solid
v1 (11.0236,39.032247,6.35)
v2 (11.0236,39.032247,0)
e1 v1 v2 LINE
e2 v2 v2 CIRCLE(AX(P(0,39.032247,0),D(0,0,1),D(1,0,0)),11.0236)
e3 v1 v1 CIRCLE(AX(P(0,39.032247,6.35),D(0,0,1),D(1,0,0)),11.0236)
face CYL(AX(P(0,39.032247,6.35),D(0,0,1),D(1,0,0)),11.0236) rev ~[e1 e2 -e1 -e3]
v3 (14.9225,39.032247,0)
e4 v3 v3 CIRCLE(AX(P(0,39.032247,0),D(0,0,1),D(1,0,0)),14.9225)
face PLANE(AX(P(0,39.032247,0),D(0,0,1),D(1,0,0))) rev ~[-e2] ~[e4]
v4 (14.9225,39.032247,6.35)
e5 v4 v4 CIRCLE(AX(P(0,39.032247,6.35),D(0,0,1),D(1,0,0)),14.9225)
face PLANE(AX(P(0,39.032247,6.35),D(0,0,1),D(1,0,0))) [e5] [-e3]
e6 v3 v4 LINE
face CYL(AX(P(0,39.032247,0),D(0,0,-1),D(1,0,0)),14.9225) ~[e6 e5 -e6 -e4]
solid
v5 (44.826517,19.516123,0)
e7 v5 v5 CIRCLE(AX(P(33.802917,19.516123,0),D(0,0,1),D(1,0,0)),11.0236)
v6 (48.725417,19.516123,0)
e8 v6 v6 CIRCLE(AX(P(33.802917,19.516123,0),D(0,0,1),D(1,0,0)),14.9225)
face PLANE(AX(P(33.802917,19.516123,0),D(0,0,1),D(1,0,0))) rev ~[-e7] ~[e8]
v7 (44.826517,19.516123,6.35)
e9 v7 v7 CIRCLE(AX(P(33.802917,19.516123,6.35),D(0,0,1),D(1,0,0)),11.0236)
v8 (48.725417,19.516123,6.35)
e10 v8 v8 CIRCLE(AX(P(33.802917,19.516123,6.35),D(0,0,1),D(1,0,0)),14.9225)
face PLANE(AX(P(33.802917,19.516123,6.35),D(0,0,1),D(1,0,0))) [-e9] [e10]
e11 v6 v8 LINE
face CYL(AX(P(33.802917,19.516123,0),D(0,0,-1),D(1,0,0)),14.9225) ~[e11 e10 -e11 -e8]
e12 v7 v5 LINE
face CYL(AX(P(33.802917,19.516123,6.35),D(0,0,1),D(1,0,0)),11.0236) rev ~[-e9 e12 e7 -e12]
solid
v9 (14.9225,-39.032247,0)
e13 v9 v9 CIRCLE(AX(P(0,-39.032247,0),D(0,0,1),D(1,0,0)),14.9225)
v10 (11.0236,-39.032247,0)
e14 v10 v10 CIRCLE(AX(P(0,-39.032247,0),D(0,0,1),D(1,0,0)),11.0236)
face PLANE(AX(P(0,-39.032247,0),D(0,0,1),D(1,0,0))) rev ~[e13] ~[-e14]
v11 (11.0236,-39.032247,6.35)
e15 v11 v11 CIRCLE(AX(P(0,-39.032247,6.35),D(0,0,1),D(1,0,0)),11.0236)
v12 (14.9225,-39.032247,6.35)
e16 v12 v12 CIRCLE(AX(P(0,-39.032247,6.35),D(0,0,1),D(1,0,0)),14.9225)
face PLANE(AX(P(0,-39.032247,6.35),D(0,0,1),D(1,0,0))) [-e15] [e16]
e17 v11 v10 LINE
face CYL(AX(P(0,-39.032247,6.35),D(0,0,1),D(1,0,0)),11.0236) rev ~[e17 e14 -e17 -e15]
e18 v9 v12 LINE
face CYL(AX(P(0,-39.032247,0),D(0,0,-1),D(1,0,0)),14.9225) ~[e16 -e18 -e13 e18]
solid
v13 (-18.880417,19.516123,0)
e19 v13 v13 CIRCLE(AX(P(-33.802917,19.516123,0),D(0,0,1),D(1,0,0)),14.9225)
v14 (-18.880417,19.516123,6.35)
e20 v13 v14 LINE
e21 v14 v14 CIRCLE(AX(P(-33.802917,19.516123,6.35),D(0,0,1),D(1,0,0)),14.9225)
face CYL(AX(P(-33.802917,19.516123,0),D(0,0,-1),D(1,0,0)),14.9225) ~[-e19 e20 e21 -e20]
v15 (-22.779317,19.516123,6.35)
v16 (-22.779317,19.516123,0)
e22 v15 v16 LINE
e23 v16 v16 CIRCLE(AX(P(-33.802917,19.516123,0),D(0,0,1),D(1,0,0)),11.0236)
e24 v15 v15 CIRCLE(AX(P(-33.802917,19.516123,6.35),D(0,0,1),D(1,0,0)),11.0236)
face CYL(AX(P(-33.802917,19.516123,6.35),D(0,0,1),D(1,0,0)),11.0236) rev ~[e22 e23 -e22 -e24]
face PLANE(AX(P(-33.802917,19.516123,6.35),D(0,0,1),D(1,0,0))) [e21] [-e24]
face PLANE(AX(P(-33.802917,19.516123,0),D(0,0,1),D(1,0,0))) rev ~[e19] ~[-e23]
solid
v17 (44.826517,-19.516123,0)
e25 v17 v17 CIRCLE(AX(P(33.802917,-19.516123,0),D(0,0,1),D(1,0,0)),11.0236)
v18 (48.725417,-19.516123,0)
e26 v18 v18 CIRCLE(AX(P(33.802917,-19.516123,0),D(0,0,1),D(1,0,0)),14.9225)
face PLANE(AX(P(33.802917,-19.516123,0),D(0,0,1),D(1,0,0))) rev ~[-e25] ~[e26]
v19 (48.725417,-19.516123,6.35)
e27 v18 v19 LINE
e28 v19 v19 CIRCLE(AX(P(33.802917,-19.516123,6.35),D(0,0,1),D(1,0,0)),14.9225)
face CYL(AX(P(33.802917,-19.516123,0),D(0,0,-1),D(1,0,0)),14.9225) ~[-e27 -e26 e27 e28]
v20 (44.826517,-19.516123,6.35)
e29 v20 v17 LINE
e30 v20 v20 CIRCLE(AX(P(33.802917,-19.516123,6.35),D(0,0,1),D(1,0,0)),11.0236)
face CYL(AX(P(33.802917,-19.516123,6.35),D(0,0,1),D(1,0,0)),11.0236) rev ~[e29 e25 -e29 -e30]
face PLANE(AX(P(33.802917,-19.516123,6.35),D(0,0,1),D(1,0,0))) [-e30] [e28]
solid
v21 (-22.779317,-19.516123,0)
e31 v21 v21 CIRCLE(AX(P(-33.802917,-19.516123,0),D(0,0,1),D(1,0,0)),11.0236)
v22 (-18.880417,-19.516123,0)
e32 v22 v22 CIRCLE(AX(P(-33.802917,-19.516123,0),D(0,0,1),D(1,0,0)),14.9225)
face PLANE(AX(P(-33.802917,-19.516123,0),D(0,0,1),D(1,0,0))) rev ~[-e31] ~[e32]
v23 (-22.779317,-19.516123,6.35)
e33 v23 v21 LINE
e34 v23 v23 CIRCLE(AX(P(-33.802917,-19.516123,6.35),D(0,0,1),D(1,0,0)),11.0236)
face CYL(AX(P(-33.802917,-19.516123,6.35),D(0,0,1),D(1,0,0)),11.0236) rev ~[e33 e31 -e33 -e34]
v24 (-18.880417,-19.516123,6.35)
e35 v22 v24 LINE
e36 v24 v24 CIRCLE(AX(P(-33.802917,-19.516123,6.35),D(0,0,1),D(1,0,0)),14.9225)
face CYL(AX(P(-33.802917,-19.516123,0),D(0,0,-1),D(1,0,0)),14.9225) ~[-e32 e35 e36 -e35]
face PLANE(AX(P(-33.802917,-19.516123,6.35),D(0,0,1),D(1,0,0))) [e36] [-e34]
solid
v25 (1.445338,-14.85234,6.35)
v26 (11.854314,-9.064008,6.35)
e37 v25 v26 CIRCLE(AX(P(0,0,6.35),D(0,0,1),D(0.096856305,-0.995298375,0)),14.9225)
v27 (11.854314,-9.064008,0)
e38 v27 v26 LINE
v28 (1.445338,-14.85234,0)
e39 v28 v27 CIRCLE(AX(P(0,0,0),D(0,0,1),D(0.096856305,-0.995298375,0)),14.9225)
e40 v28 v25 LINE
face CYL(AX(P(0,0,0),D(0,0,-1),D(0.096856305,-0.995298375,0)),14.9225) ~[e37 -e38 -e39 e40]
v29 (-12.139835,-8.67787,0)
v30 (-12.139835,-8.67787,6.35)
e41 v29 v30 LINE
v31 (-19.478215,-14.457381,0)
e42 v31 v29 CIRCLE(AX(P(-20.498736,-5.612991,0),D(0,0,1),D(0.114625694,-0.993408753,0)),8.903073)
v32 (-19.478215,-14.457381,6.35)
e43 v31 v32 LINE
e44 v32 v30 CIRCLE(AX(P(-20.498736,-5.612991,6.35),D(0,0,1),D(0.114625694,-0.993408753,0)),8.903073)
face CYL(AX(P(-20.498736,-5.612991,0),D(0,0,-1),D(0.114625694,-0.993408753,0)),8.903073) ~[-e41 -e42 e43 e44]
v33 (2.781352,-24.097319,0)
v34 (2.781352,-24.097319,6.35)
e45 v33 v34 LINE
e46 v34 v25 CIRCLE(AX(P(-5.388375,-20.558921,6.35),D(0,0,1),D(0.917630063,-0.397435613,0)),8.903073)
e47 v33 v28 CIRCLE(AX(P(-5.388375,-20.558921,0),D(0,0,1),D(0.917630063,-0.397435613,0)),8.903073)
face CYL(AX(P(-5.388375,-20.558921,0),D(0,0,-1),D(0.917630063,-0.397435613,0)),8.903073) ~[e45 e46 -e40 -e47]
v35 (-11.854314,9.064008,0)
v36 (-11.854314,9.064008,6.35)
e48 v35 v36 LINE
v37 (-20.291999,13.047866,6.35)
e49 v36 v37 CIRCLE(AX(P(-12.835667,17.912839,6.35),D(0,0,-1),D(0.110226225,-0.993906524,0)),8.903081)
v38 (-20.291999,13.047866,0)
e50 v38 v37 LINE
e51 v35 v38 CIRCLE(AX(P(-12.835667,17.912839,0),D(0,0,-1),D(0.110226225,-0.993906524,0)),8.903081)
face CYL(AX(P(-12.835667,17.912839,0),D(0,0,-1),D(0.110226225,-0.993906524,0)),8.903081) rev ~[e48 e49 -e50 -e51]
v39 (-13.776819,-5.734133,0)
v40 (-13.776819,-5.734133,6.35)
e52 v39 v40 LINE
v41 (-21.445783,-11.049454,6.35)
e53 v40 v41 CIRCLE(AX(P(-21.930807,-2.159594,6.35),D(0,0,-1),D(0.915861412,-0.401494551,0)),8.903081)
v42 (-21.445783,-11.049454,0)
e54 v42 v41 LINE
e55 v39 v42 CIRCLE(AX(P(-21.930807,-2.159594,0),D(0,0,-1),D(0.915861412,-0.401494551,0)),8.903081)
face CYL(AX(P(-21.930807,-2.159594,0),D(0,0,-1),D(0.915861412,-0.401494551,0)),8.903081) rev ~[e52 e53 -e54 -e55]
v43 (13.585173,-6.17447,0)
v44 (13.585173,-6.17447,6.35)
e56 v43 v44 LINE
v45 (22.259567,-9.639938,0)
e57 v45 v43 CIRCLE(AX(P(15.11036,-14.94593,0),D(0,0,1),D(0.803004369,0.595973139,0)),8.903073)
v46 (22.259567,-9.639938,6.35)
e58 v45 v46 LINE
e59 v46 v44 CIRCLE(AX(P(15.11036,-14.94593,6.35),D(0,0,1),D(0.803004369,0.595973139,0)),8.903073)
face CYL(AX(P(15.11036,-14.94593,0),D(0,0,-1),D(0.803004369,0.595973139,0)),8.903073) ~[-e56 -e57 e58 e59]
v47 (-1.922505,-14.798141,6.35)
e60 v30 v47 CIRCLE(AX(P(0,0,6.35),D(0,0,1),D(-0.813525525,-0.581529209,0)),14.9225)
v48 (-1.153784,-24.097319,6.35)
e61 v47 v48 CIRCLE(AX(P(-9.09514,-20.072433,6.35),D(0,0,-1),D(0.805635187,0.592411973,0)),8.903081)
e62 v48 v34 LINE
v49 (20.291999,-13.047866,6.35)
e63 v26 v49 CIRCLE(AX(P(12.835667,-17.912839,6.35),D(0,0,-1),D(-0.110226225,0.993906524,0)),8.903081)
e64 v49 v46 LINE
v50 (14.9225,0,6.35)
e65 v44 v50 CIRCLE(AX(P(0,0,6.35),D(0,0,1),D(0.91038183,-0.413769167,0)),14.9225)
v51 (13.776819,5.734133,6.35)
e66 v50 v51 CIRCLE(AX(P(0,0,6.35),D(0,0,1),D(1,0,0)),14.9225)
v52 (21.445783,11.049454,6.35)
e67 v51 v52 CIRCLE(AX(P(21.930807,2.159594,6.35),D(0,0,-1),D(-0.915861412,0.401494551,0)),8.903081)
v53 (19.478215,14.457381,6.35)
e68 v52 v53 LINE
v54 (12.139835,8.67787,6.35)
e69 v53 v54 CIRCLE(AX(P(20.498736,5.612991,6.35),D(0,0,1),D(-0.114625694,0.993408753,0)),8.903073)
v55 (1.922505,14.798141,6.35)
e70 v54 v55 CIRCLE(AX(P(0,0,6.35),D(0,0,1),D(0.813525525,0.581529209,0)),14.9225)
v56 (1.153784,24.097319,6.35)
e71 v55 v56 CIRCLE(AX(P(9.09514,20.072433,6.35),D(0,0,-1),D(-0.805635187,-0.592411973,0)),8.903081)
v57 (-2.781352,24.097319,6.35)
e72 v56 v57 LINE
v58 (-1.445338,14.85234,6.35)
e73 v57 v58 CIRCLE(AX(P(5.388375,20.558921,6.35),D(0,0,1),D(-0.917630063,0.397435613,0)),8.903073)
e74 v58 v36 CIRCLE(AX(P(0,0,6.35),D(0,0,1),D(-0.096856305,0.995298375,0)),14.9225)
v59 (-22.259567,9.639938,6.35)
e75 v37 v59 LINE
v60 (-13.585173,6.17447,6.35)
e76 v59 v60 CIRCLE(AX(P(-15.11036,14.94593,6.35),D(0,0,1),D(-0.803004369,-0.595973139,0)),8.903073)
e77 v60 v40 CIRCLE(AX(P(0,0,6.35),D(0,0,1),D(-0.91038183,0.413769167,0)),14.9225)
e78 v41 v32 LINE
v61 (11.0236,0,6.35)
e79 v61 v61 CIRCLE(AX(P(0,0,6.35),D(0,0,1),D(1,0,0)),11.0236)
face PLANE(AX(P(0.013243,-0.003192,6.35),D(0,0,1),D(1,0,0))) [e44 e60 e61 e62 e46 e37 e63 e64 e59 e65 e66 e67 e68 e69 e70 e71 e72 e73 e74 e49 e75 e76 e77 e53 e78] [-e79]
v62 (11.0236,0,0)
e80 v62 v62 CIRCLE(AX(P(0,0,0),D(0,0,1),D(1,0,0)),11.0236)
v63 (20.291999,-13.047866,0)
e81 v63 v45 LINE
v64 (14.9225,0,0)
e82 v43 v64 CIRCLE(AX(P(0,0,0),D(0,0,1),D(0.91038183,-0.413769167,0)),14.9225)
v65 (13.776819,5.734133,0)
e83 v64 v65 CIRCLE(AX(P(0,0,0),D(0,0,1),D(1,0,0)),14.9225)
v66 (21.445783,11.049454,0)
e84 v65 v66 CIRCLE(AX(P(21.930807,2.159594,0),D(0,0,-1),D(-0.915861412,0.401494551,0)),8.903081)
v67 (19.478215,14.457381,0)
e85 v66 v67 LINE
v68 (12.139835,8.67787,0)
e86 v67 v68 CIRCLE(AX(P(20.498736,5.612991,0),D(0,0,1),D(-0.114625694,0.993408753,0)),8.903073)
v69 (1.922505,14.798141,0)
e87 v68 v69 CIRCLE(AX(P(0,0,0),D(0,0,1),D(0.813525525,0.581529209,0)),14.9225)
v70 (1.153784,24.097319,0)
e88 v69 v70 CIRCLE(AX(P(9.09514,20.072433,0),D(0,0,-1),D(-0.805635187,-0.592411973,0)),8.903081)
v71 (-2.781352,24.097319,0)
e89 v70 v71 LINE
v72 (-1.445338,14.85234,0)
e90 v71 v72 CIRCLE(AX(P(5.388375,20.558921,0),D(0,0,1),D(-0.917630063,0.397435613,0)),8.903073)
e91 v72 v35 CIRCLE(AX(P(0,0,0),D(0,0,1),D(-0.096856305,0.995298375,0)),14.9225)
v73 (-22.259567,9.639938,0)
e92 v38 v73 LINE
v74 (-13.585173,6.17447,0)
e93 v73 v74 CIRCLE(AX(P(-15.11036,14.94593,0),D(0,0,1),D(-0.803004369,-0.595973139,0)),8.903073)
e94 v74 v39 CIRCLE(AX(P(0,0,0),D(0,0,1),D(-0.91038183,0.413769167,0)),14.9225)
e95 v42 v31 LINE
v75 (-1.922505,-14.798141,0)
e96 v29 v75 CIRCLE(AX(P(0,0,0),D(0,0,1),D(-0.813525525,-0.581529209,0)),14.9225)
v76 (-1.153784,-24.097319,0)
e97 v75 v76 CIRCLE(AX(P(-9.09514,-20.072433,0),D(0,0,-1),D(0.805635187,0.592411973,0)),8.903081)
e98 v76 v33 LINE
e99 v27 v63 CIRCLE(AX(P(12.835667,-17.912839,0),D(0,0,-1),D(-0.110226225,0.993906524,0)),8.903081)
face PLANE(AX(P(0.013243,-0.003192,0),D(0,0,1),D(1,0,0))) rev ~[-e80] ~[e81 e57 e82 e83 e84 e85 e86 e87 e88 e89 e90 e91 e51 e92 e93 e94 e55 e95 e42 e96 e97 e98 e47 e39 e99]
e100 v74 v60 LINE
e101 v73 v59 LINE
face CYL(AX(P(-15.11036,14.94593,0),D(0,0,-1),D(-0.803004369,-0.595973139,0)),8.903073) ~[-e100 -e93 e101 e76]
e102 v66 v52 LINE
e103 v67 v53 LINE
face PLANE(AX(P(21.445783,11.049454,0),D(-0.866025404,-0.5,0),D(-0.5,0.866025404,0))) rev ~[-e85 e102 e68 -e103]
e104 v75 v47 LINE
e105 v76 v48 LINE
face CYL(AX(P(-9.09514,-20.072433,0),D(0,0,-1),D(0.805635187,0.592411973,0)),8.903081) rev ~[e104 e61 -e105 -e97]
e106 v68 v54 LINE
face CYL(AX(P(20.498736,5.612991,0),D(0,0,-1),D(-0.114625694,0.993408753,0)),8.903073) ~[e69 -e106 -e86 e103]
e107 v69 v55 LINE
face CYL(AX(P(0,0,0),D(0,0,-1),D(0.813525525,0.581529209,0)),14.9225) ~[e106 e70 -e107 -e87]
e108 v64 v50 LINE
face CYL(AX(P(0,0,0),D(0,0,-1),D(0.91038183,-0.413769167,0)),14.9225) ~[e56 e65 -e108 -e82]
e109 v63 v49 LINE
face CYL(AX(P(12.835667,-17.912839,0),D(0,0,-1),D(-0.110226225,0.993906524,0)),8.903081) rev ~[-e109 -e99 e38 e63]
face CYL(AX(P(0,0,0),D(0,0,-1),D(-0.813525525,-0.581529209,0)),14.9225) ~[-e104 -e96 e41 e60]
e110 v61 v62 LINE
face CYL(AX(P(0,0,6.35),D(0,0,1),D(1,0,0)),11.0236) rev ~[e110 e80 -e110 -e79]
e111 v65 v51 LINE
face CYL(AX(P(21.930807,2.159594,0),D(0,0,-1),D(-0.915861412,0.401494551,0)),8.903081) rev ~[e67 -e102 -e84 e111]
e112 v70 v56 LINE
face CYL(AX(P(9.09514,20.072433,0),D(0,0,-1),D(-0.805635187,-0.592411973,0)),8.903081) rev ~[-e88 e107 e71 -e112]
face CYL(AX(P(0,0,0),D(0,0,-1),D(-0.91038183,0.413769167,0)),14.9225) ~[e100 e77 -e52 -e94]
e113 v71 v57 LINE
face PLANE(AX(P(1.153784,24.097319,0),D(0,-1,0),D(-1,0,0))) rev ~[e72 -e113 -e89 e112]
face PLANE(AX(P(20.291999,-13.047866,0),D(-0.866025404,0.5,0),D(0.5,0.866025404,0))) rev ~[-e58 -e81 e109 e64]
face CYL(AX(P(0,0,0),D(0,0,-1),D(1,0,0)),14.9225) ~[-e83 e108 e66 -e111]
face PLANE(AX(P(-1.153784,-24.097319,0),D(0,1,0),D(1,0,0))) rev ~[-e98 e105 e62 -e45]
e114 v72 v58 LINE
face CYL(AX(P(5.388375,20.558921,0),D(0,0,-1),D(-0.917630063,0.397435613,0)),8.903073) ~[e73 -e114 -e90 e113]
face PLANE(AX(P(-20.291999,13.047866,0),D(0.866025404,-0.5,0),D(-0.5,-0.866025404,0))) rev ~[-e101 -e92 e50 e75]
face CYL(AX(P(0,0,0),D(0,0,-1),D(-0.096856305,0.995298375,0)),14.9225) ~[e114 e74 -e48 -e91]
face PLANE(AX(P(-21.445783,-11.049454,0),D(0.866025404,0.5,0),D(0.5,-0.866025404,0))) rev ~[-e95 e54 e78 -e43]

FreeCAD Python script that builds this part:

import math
import FreeCAD as App
import Part
import Sketcher

V = App.Vector
Q = App.Units.Quantity

doc = App.newDocument("Part")
params = doc.addObject("Spreadsheet::Sheet", "Params")
for row, (alias, value) in enumerate([
    ("pad1_length", "0.25 in"),
    ("sketch2_diameter", "0.868 in"),
    ("pocket1_length", "1 in"),
    ("sketch3_diameter", "0.868 in"),
    ("pocket2_length", "1 in"),
    ("sketch4_diameter", "0.868 in"),
    ("pocket3_length", "1 in"),
    ("sketch5_diameter", "0.868 in"),
    ("pocket4_length", "1 in"),
    ("sketch6_diameter", "0.868 in"),
    ("pocket5_length", "1 in"),
    ("sketch7_diameter", "0.868 in"),
    ("pocket6_length", "1 in"),
    ("sketch8_diameter", "1.175 in"),
    ("pad2_length", "0.25 in"),
    ("sketch9_diameter", "1.175 in"),
    ("pad3_length", "0.25 in"),
    ("sketch10_diameter", "1.175 in"),
    ("pad4_length", "0.25 in"),
    ("sketch11_diameter", "1.175 in"),
    ("pad5_length", "0.25 in"),
    ("sketch12_diameter", "1.175 in"),
    ("pad6_length", "0.25 in"),
    ("sketch13_diameter", "1.175 in"),
    ("pad7_length", "0.25 in"),
    ("sketch14_diameter", "0.868 in"),
    ("pad8_length", "1 in"),
], start=1):
    params.set(f"A{row}", alias)
    params.set(f"B{row}", "=" + value)
    params.setAlias(f"B{row}", alias)

body = doc.addObject("PartDesign::Body", "Body")

# Sketch on XY plane
sketch1 = body.newObject("Sketcher::SketchObject", "Sketch")
sketch1.AttachmentSupport = (doc.getObject("XY_Plane"), [""])
sketch1.MapMode = "FlatFace"
sketch1.addGeometry([
    Part.ArcOfCircle(Part.Circle(V(0, 0, 0), V(0, 0, 1), 14.9), math.radians(-24), math.radians(0)),  # 0
    Part.ArcOfCircle(Part.Circle(V(0, 0, 0), V(0, 0, 1), 14.9), math.radians(0), math.radians(23)),  # 1
    Part.ArcOfCircle(Part.Circle(V(21.9, 2.2, 0), V(0, 0, 1), 8.9), math.radians(93), math.radians(156)),  # 2
    Part.LineSegment(V(21.4, 11, 0), V(19.5, 14.5, 0)),  # 3
    Part.ArcOfCircle(Part.Circle(V(20.5, 5.6, 0), V(0, 0, 1), 8.9), math.radians(97), math.radians(160)),  # 4
    Part.ArcOfCircle(Part.Circle(V(0, 0, 0), V(0, 0, 1), 14.9), math.radians(36), math.radians(83)),  # 5
    Part.ArcOfCircle(Part.Circle(V(9.1, 20.1, 0), V(0, 0, 1), 8.9), math.radians(153), math.radians(216)),  # 6
    Part.LineSegment(V(1.2, 24.1, 0), V(-2.8, 24.1, 0)),  # 7
    Part.ArcOfCircle(Part.Circle(V(5.4, 20.6, 0), V(0, 0, 1), 8.9), math.radians(157), math.radians(220)),  # 8
    Part.ArcOfCircle(Part.Circle(V(0, 0, 0), V(0, 0, 1), 14.9), math.radians(96), math.radians(143)),  # 9
    Part.ArcOfCircle(Part.Circle(V(-12.8, 17.9, 0), V(0, 0, 1), 8.9), math.radians(-147), math.radians(-84)),  # 10
    Part.LineSegment(V(-20.3, 13, 0), V(-22.3, 9.6, 0)),  # 11
    Part.ArcOfCircle(Part.Circle(V(-15.1, 14.9, 0), V(0, 0, 1), 8.9), math.radians(-143), math.radians(-80)),  # 12
    Part.ArcOfCircle(Part.Circle(V(0, 0, 0), V(0, 0, 1), 14.9), math.radians(156), math.radians(203)),  # 13
    Part.ArcOfCircle(Part.Circle(V(-21.9, -2.2, 0), V(0, 0, 1), 8.9), math.radians(-87), math.radians(-24)),  # 14
    Part.LineSegment(V(-21.4, -11, 0), V(-19.5, -14.5, 0)),  # 15
    Part.ArcOfCircle(Part.Circle(V(-20.5, -5.6, 0), V(0, 0, 1), 8.9), math.radians(-83), math.radians(-20)),  # 16
    Part.ArcOfCircle(Part.Circle(V(0, 0, 0), V(0, 0, 1), 14.9), math.radians(-144), math.radians(-97)),  # 17
    Part.ArcOfCircle(Part.Circle(V(-9.1, -20.1, 0), V(0, 0, 1), 8.9), math.radians(-27), math.radians(36)),  # 18
    Part.LineSegment(V(-1.2, -24.1, 0), V(2.8, -24.1, 0)),  # 19
    Part.ArcOfCircle(Part.Circle(V(-5.4, -20.6, 0), V(0, 0, 1), 8.9), math.radians(-23), math.radians(40)),  # 20
    Part.ArcOfCircle(Part.Circle(V(0, 0, 0), V(0, 0, 1), 14.9), math.radians(-84), math.radians(-37)),  # 21
    Part.ArcOfCircle(Part.Circle(V(12.8, -17.9, 0), V(0, 0, 1), 8.9), math.radians(33), math.radians(96)),  # 22
    Part.LineSegment(V(20.3, -13, 0), V(22.3, -9.6, 0)),  # 23
    Part.ArcOfCircle(Part.Circle(V(15.1, -14.9, 0), V(0, 0, 1), 8.9), math.radians(37), math.radians(100)),  # 24
], False)
sketch1.addConstraint([
    Sketcher.Constraint("Tangent", 0, 2, 1, 1),
    Sketcher.Constraint("Coincident", 1, 2, 2, 2),
    Sketcher.Constraint("Coincident", 2, 1, 3, 1),
    Sketcher.Constraint("Coincident", 3, 2, 4, 1),
    Sketcher.Constraint("Coincident", 4, 2, 5, 1),
    Sketcher.Constraint("Coincident", 5, 2, 6, 2),
    Sketcher.Constraint("Coincident", 6, 1, 7, 1),
    Sketcher.Constraint("Coincident", 7, 2, 8, 1),
    Sketcher.Constraint("Coincident", 8, 2, 9, 1),
    Sketcher.Constraint("Coincident", 9, 2, 10, 2),
    Sketcher.Constraint("Coincident", 10, 1, 11, 1),
    Sketcher.Constraint("Coincident", 11, 2, 12, 1),
    Sketcher.Constraint("Coincident", 12, 2, 13, 1),
    Sketcher.Constraint("Coincident", 13, 2, 14, 2),
    Sketcher.Constraint("Coincident", 14, 1, 15, 1),
    Sketcher.Constraint("Coincident", 15, 2, 16, 1),
    Sketcher.Constraint("Coincident", 16, 2, 17, 1),
    Sketcher.Constraint("Coincident", 17, 2, 18, 2),
    Sketcher.Constraint("Coincident", 18, 1, 19, 1),
    Sketcher.Constraint("Coincident", 19, 2, 20, 1),
    Sketcher.Constraint("Coincident", 20, 2, 21, 1),
    Sketcher.Constraint("Coincident", 21, 2, 22, 2),
    Sketcher.Constraint("Coincident", 22, 1, 23, 1),
    Sketcher.Constraint("Coincident", 23, 2, 24, 1),
    Sketcher.Constraint("Coincident", 24, 2, 0, 1),
    Sketcher.Constraint("Horizontal", 7),
    Sketcher.Constraint("Horizontal", 19),
    Sketcher.Constraint("Coincident", 0, 3, -1, 1),
    Sketcher.Constraint("Coincident", 5, 3, -1, 1),
    Sketcher.Constraint("Coincident", 9, 3, -1, 1),
    Sketcher.Constraint("Coincident", 13, 3, -1, 1),
    Sketcher.Constraint("Coincident", 17, 3, -1, 1),
    Sketcher.Constraint("Coincident", 21, 3, -1, 1),
    Sketcher.Constraint("Equal", 0, 1),
    Sketcher.Constraint("Equal", 1, 5),
    Sketcher.Constraint("Equal", 2, 6),
    Sketcher.Constraint("Equal", 4, 8),
    Sketcher.Constraint("Equal", 5, 9),
    Sketcher.Constraint("Equal", 6, 10),
    Sketcher.Constraint("Equal", 8, 12),
    Sketcher.Constraint("Equal", 9, 13),
    Sketcher.Constraint("Equal", 10, 14),
    Sketcher.Constraint("Equal", 12, 16),
    Sketcher.Constraint("Equal", 13, 17),
    Sketcher.Constraint("Equal", 14, 18),
    Sketcher.Constraint("Equal", 16, 20),
    Sketcher.Constraint("Equal", 17, 21),
    Sketcher.Constraint("Equal", 18, 22),
    Sketcher.Constraint("Equal", 20, 24),
    Sketcher.Constraint("Symmetric", 2, 3, 14, 3, -1, 1),
    Sketcher.Constraint("Symmetric", 4, 3, 16, 3, -1, 1),
    Sketcher.Constraint("Symmetric", 6, 3, 18, 3, -1, 1),
    Sketcher.Constraint("Symmetric", 8, 3, 20, 3, -1, 1),
    Sketcher.Constraint("Symmetric", 10, 3, 22, 3, -1, 1),
    Sketcher.Constraint("Symmetric", 12, 3, 24, 3, -1, 1),
    Sketcher.Constraint("PointOnObject", 0, 2, -1),
    Sketcher.Constraint("Parallel", 3, 15),
    Sketcher.Constraint("Parallel", 11, 23),
    Sketcher.Constraint("Equal", 7, 19),
    Sketcher.Constraint("Equal", 3, 11),
    Sketcher.Constraint("Equal", 11, 15),
    Sketcher.Constraint("Equal", 15, 23),
    Sketcher.Constraint("Angle", 3, Q("120 deg")),
    Sketcher.Constraint("Angle", 11, Q("-120 deg")),
    Sketcher.Constraint("Radius", 0, Q("0.5875 in")),
    Sketcher.Constraint("Radius", 2, 8.903081),
    Sketcher.Constraint("Radius", 4, 8.903073),
    Sketcher.Constraint("DistanceX", 10, 1, -1, 1, 20.291999),
    Sketcher.Constraint("DistanceX", 4, 2, 4, 3, 8.358901),
    Sketcher.Constraint("DistanceY", 8, 3, 6, 1, 3.538398),
    Sketcher.Constraint("DistanceY", 5, 2, 8, 2, 0.054199),
    Sketcher.Constraint("DistanceX", 11, 2, 10, 3, 9.4239),
    Sketcher.Constraint("DistanceY", 11, 2, 10, 3, 8.272901),
    Sketcher.Constraint("DistanceX", 7, 2, 7, 1, 3.935136),
    Sketcher.Constraint("DistanceY", -1, 1, 4, 3, 5.612991),
    Sketcher.Constraint("DistanceX", -1, 1, 6, 3, 9.09514),
    Sketcher.Constraint("DistanceY", -1, 1, 8, 3, 20.558921),
    Sketcher.Constraint("DistanceY", -1, 1, 10, 3, 17.912839),
    Sketcher.Constraint("DistanceX", 12, 3, -1, 1, 15.11036),
    Sketcher.Constraint("DistanceX", -1, 1, 1, 2, 13.776819),
    Sketcher.Constraint("DistanceY", -1, 1, 3, 2, 14.457381),
])
pad1 = body.newObject("PartDesign::Pad", "Pad")
pad1.Profile = sketch1
pad1.setExpression("Length", "Params.pad1_length")

# Sketch on XY plane
sketch2 = body.newObject("Sketcher::SketchObject", "Sketch001")
sketch2.AttachmentSupport = (doc.getObject("XY_Plane"), [""])
sketch2.MapMode = "FlatFace"
sketch2.AttachmentOffset = App.Placement(V(0, 0, 0.25 * 25.4), App.Rotation())
sketch2.addGeometry(Part.Circle(V(0, 39, 0), V(0, 0, 1), 11), False)
sketch2.addConstraint([
    Sketcher.Constraint("PointOnObject", 0, 3, -2),
    Sketcher.Constraint("Diameter", 0, Q("0.868 in")),
    Sketcher.Constraint("DistanceY", -1, 1, 0, 3, 39.032247),
])
sketch2.setExpression("Constraints[1]", "Params.sketch2_diameter")
pocket1 = body.newObject("PartDesign::Pocket", "Pocket")
pocket1.Profile = sketch2
pocket1.setExpression("Length", "Params.pocket1_length")

# Sketch on XY plane
sketch3 = body.newObject("Sketcher::SketchObject", "Sketch002")
sketch3.AttachmentSupport = (doc.getObject("XY_Plane"), [""])
sketch3.MapMode = "FlatFace"
sketch3.AttachmentOffset = App.Placement(V(0, 0, 0.25 * 25.4), App.Rotation())
sketch3.addGeometry(Part.Circle(V(34, 20, 0), V(0, 0, 1), 11), False)
sketch3.addConstraint([
    Sketcher.Constraint("Diameter", 0, Q("0.868 in")),
    Sketcher.Constraint("DistanceX", -1, 1, 0, 3, 33.802917),
    Sketcher.Constraint("DistanceY", -1, 1, 0, 3, 19.516123),
])
sketch3.setExpression("Constraints[0]", "Params.sketch3_diameter")
pocket2 = body.newObject("PartDesign::Pocket", "Pocket001")
pocket2.Profile = sketch3
pocket2.setExpression("Length", "Params.pocket2_length")

# Sketch on XY plane
sketch4 = body.newObject("Sketcher::SketchObject", "Sketch003")
sketch4.AttachmentSupport = (doc.getObject("XY_Plane"), [""])
sketch4.MapMode = "FlatFace"
sketch4.AttachmentOffset = App.Placement(V(0, 0, 0.25 * 25.4), App.Rotation())
sketch4.addGeometry(Part.Circle(V(34, -20, 0), V(0, 0, 1), 11), False)
sketch4.addConstraint([
    Sketcher.Constraint("Diameter", 0, Q("0.868 in")),
    Sketcher.Constraint("DistanceX", -1, 1, 0, 3, 33.802917),
    Sketcher.Constraint("DistanceY", 0, 3, -1, 1, 19.516123),
])
sketch4.setExpression("Constraints[0]", "Params.sketch4_diameter")
pocket3 = body.newObject("PartDesign::Pocket", "Pocket002")
pocket3.Profile = sketch4
pocket3.setExpression("Length", "Params.pocket3_length")

# Sketch on XY plane
sketch5 = body.newObject("Sketcher::SketchObject", "Sketch004")
sketch5.AttachmentSupport = (doc.getObject("XY_Plane"), [""])
sketch5.MapMode = "FlatFace"
sketch5.AttachmentOffset = App.Placement(V(0, 0, 0.25 * 25.4), App.Rotation())
sketch5.addGeometry(Part.Circle(V(0, -39, 0), V(0, 0, 1), 11), False)
sketch5.addConstraint([
    Sketcher.Constraint("PointOnObject", 0, 3, -2),
    Sketcher.Constraint("Diameter", 0, Q("0.868 in")),
    Sketcher.Constraint("DistanceY", 0, 3, -1, 1, 39.032247),
])
sketch5.setExpression("Constraints[1]", "Params.sketch5_diameter")
pocket4 = body.newObject("PartDesign::Pocket", "Pocket003")
pocket4.Profile = sketch5
pocket4.setExpression("Length", "Params.pocket4_length")

# Sketch on XY plane
sketch6 = body.newObject("Sketcher::SketchObject", "Sketch005")
sketch6.AttachmentSupport = (doc.getObject("XY_Plane"), [""])
sketch6.MapMode = "FlatFace"
sketch6.AttachmentOffset = App.Placement(V(0, 0, 0.25 * 25.4), App.Rotation())
sketch6.addGeometry(Part.Circle(V(-34, -20, 0), V(0, 0, 1), 11), False)
sketch6.addConstraint([
    Sketcher.Constraint("Diameter", 0, Q("0.868 in")),
    Sketcher.Constraint("DistanceX", 0, 3, -1, 1, 33.802917),
    Sketcher.Constraint("DistanceY", 0, 3, -1, 1, 19.516123),
])
sketch6.setExpression("Constraints[0]", "Params.sketch6_diameter")
pocket5 = body.newObject("PartDesign::Pocket", "Pocket004")
pocket5.Profile = sketch6
pocket5.setExpression("Length", "Params.pocket5_length")

# Sketch on XY plane
sketch7 = body.newObject("Sketcher::SketchObject", "Sketch006")
sketch7.AttachmentSupport = (doc.getObject("XY_Plane"), [""])
sketch7.MapMode = "FlatFace"
sketch7.AttachmentOffset = App.Placement(V(0, 0, 0.25 * 25.4), App.Rotation())
sketch7.addGeometry(Part.Circle(V(0, 0, 0), V(0, 0, 1), 11), False)
sketch7.addConstraint([
    Sketcher.Constraint("Coincident", 0, 3, -1, 1),
    Sketcher.Constraint("Diameter", 0, Q("0.868 in")),
])
sketch7.setExpression("Constraints[1]", "Params.sketch7_diameter")
pocket6 = body.newObject("PartDesign::Pocket", "Pocket005")
pocket6.Profile = sketch7
pocket6.setExpression("Length", "Params.pocket6_length")
body2 = doc.addObject("PartDesign::Body", "Body001")

# Sketch on XY plane
sketch8 = body2.newObject("Sketcher::SketchObject", "Sketch007")
sketch8.AttachmentSupport = (doc.getObject("XY_Plane001"), [""])
sketch8.MapMode = "FlatFace"
sketch8.addGeometry(Part.Circle(V(0, 39, 0), V(0, 0, 1), 15), False)
sketch8.addConstraint([
    Sketcher.Constraint("PointOnObject", 0, 3, -2),
    Sketcher.Constraint("Diameter", 0, Q("1.175 in")),
    Sketcher.Constraint("DistanceY", -1, 1, 0, 3, 39.032247),
])
sketch8.setExpression("Constraints[1]", "Params.sketch8_diameter")
pad2 = body2.newObject("PartDesign::Pad", "Pad001")
pad2.Profile = sketch8
pad2.setExpression("Length", "Params.pad2_length")
body3 = doc.addObject("PartDesign::Body", "Body002")

# Sketch on XY plane
sketch9 = body3.newObject("Sketcher::SketchObject", "Sketch008")
sketch9.AttachmentSupport = (doc.getObject("XY_Plane002"), [""])
sketch9.MapMode = "FlatFace"
sketch9.addGeometry(Part.Circle(V(-34, 20, 0), V(0, 0, 1), 15), False)
sketch9.addConstraint([
    Sketcher.Constraint("Diameter", 0, Q("1.175 in")),
    Sketcher.Constraint("DistanceX", 0, 3, -1, 1, 33.802917),
    Sketcher.Constraint("DistanceY", -1, 1, 0, 3, 19.516123),
])
sketch9.setExpression("Constraints[0]", "Params.sketch9_diameter")
pad3 = body3.newObject("PartDesign::Pad", "Pad002")
pad3.Profile = sketch9
pad3.setExpression("Length", "Params.pad3_length")
body4 = doc.addObject("PartDesign::Body", "Body003")

# Sketch on XY plane
sketch10 = body4.newObject("Sketcher::SketchObject", "Sketch009")
sketch10.AttachmentSupport = (doc.getObject("XY_Plane003"), [""])
sketch10.MapMode = "FlatFace"
sketch10.addGeometry(Part.Circle(V(-34, -20, 0), V(0, 0, 1), 15), False)
sketch10.addConstraint([
    Sketcher.Constraint("Diameter", 0, Q("1.175 in")),
    Sketcher.Constraint("DistanceX", 0, 3, -1, 1, 33.802917),
    Sketcher.Constraint("DistanceY", 0, 3, -1, 1, 19.516123),
])
sketch10.setExpression("Constraints[0]", "Params.sketch10_diameter")
pad4 = body4.newObject("PartDesign::Pad", "Pad003")
pad4.Profile = sketch10
pad4.setExpression("Length", "Params.pad4_length")
body5 = doc.addObject("PartDesign::Body", "Body004")

# Sketch on XY plane
sketch11 = body5.newObject("Sketcher::SketchObject", "Sketch010")
sketch11.AttachmentSupport = (doc.getObject("XY_Plane004"), [""])
sketch11.MapMode = "FlatFace"
sketch11.addGeometry(Part.Circle(V(0, -39, 0), V(0, 0, 1), 15), False)
sketch11.addConstraint([
    Sketcher.Constraint("PointOnObject", 0, 3, -2),
    Sketcher.Constraint("Diameter", 0, Q("1.175 in")),
    Sketcher.Constraint("DistanceY", 0, 3, -1, 1, 39.032247),
])
sketch11.setExpression("Constraints[1]", "Params.sketch11_diameter")
pad5 = body5.newObject("PartDesign::Pad", "Pad004")
pad5.Profile = sketch11
pad5.setExpression("Length", "Params.pad5_length")
body6 = doc.addObject("PartDesign::Body", "Body005")

# Sketch on XY plane
sketch12 = body6.newObject("Sketcher::SketchObject", "Sketch011")
sketch12.AttachmentSupport = (doc.getObject("XY_Plane005"), [""])
sketch12.MapMode = "FlatFace"
sketch12.addGeometry(Part.Circle(V(34, -20, 0), V(0, 0, 1), 15), False)
sketch12.addConstraint([
    Sketcher.Constraint("Diameter", 0, Q("1.175 in")),
    Sketcher.Constraint("DistanceX", -1, 1, 0, 3, 33.802917),
    Sketcher.Constraint("DistanceY", 0, 3, -1, 1, 19.516123),
])
sketch12.setExpression("Constraints[0]", "Params.sketch12_diameter")
pad6 = body6.newObject("PartDesign::Pad", "Pad005")
pad6.Profile = sketch12
pad6.setExpression("Length", "Params.pad6_length")
body7 = doc.addObject("PartDesign::Body", "Body006")

# Sketch on XY plane
sketch13 = body7.newObject("Sketcher::SketchObject", "Sketch012")
sketch13.AttachmentSupport = (doc.getObject("XY_Plane006"), [""])
sketch13.MapMode = "FlatFace"
sketch13.addGeometry(Part.Circle(V(34, 20, 0), V(0, 0, 1), 15), False)
sketch13.addConstraint([
    Sketcher.Constraint("Diameter", 0, Q("1.175 in")),
    Sketcher.Constraint("DistanceX", -1, 1, 0, 3, 33.802917),
    Sketcher.Constraint("DistanceY", -1, 1, 0, 3, 19.516123),
])
sketch13.setExpression("Constraints[0]", "Params.sketch13_diameter")
pad7 = body7.newObject("PartDesign::Pad", "Pad006")
pad7.Profile = sketch13
pad7.setExpression("Length", "Params.pad7_length")
body8 = doc.addObject("PartDesign::Body", "Body007")
body8.AllowCompound = True

# Sketch on XY plane
sketch14 = body8.newObject("Sketcher::SketchObject", "Sketch013")
sketch14.AttachmentSupport = (doc.getObject("XY_Plane007"), [""])
sketch14.MapMode = "FlatFace"
sketch14.AttachmentOffset = App.Placement(V(0, 0, 0.25 * 25.4), App.Rotation())
sketch14.addGeometry([
    Part.Circle(V(-34, 20, 0), V(0, 0, 1), 11),  # 0
    Part.Circle(V(0, 39, 0), V(0, 0, 1), 11),  # 1
    Part.Circle(V(34, 20, 0), V(0, 0, 1), 11),  # 2
    Part.Circle(V(34, -20, 0), V(0, 0, 1), 11),  # 3
    Part.Circle(V(0, -39, 0), V(0, 0, 1), 11),  # 4
    Part.Circle(V(-34, -20, 0), V(0, 0, 1), 11),  # 5
], False)
sketch14.addConstraint([
    Sketcher.Constraint("Equal", 0, 1),
    Sketcher.Constraint("Equal", 1, 2),
    Sketcher.Constraint("Equal", 2, 3),
    Sketcher.Constraint("Equal", 3, 4),
    Sketcher.Constraint("Equal", 4, 5),
    Sketcher.Constraint("Symmetric", 0, 3, 3, 3, -1, 1),
    Sketcher.Constraint("Symmetric", 1, 3, 4, 3, -1, 1),
    Sketcher.Constraint("Symmetric", 2, 3, 5, 3, -1, 1),
    Sketcher.Constraint("Symmetric", 0, 3, 2, 3, -2),
    Sketcher.Constraint("PointOnObject", 1, 3, -2),
    Sketcher.Constraint("Diameter", 0, Q("0.868 in")),
    Sketcher.Constraint("DistanceY", 3, 3, 1, 3, 58.54837),
    Sketcher.Constraint("DistanceX", 0, 3, -1, 1, 33.802917),
    Sketcher.Constraint("DistanceY", -1, 1, 0, 3, 19.516123),
])
sketch14.setExpression("Constraints[10]", "Params.sketch14_diameter")
pad8 = body8.newObject("PartDesign::Pad", "Pad007")
pad8.Profile = sketch14
pad8.setExpression("Length", "Params.pad8_length")
pad8.Reversed = True
doc.recompute()

body9 = doc.addObject("PartDesign::Body", "Body008")
body9.BaseFeature = body8
boolean = body2.newObject("PartDesign::Boolean", "Boolean")
boolean.Type = "Cut"
boolean.addObjects([body9])
doc.recompute()

body10 = doc.addObject("PartDesign::Body", "Body009")
body10.BaseFeature = body8
boolean2 = body3.newObject("PartDesign::Boolean", "Boolean001")
boolean2.Type = "Cut"
boolean2.addObjects([body10])
doc.recompute()

body11 = doc.addObject("PartDesign::Body", "Body010")
body11.BaseFeature = body8
boolean3 = body4.newObject("PartDesign::Boolean", "Boolean002")
boolean3.Type = "Cut"
boolean3.addObjects([body11])
doc.recompute()

body12 = doc.addObject("PartDesign::Body", "Body011")
body12.BaseFeature = body8
boolean4 = body5.newObject("PartDesign::Boolean", "Boolean003")
boolean4.Type = "Cut"
boolean4.addObjects([body12])
doc.recompute()

body13 = doc.addObject("PartDesign::Body", "Body012")
body13.BaseFeature = body8
boolean5 = body6.newObject("PartDesign::Boolean", "Boolean004")
boolean5.Type = "Cut"
boolean5.addObjects([body13])
doc.recompute()

boolean6 = body7.newObject("PartDesign::Boolean", "Boolean005")
boolean6.Type = "Cut"
boolean6.addObjects([body8])

doc.recompute()
